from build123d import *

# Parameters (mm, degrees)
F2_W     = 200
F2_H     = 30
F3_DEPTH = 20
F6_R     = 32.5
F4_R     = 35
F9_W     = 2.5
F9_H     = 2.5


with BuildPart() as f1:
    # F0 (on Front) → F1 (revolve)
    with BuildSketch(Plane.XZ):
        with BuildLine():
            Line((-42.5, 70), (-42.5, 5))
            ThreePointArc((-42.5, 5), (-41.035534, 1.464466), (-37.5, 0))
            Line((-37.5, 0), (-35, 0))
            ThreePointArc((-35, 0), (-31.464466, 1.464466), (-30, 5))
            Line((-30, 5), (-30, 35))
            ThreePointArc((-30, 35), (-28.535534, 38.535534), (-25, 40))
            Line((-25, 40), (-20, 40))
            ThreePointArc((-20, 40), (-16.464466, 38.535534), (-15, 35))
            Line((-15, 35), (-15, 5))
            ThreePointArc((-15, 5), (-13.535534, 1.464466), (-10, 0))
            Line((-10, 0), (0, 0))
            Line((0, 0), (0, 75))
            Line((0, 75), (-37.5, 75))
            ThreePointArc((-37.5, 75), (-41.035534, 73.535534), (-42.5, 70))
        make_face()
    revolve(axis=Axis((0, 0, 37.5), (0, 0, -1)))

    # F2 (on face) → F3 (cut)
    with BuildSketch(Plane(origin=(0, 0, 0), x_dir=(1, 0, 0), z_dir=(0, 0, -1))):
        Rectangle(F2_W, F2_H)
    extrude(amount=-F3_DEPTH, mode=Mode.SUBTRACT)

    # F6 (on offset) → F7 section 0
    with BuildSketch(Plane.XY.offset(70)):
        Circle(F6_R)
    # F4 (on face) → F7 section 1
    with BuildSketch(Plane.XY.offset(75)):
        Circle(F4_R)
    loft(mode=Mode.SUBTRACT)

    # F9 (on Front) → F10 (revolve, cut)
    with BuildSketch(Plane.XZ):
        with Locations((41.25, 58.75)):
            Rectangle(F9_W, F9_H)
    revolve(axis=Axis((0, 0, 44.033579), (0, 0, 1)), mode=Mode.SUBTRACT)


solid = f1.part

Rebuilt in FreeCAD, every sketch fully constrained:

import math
import FreeCAD as App
import Part
import Sketcher
from FreeCAD import Vector
Q = App.Units.Quantity


def add_polygon(sketch, points):
    """Adds a closed chain of lines whose ends are joined by coincident constraints."""
    first, n = sketch.GeometryCount, len(points)
    for a, b in zip(points, points[1:] + points[:1]):
        sketch.addGeometry(Part.LineSegment(App.Vector(*a, 0), App.Vector(*b, 0)), False)
    for i in range(n):
        sketch.addConstraint(Sketcher.Constraint("Coincident", first + i, 2, first + (i + 1) % n, 1))

doc = App.newDocument("Part")
params = doc.addObject("Spreadsheet::Sheet", "Params")
for row, (alias, value) in enumerate([
    ("sketch1_radius", "5 mm"),
    ("sketch1_width", "5 mm"),
    ("sketch1_width2", "10 mm"),
    ("sketch1_height", "65 mm"),
    ("sketch1_height2", "30 mm"),
    ("revolution_angle", "360 deg"),
    ("sketch2_width", "200 mm"),
    ("sketch2_height", "30 mm"),
    ("pocket1_length", "20 mm"),
    ("sketch3_diameter", "65 mm"),
    ("sketch4_diameter", "70 mm"),
    ("sketch5_width", "2.5 mm"),
    ("groove_angle", "360 deg"),
], start=1):
    params.set(f"A{row}", alias)
    params.set(f"B{row}", "=" + value)
    params.setAlias(f"B{row}", alias)

body = doc.addObject("PartDesign::Body", "Body")

# Sketch on XZ plane
sketch1 = body.newObject("Sketcher::SketchObject", "Sketch")
sketch1.AttachmentSupport = (doc.getObject("XZ_Plane"), [""])
sketch1.MapMode = "FlatFace"
sketch1.addGeometry([
    Part.LineSegment(Vector(-42.5, 70, 0), Vector(-42.5, 5, 0)),  # 0
    Part.ArcOfCircle(Part.Circle(Vector(-37.5, 5, 0), Vector(0, 0, 1), 5), math.radians(179.999996), math.radians(270.000004)),  # 1
    Part.LineSegment(Vector(-37.5, 0, 0), Vector(-35, 0, 0)),  # 2
    Part.ArcOfCircle(Part.Circle(Vector(-35, 5, 0), Vector(0, 0, 1), 5), math.radians(-90.000004), math.radians(0.000004)),  # 3
    Part.LineSegment(Vector(-30, 5, 0), Vector(-30, 35, 0)),  # 4
    Part.ArcOfCircle(Part.Circle(Vector(-25, 35, 0), Vector(0, 0, 1), 5), math.radians(89.999996), math.radians(180.000004)),  # 5
    Part.LineSegment(Vector(-25, 40, 0), Vector(-20, 40, 0)),  # 6
    Part.ArcOfCircle(Part.Circle(Vector(-20, 35, 0), Vector(0, 0, 1), 5), math.radians(-0.000004), math.radians(90.000004)),  # 7
    Part.LineSegment(Vector(-15, 35, 0), Vector(-15, 5, 0)),  # 8
    Part.ArcOfCircle(Part.Circle(Vector(-10, 5, 0), Vector(0, 0, 1), 5), math.radians(179.999996), math.radians(270.000004)),  # 9
    Part.LineSegment(Vector(-10, 0, 0), Vector(0, 0, 0)),  # 10
    Part.LineSegment(Vector(0, 0, 0), Vector(0, 75, 0)),  # 11
    Part.LineSegment(Vector(0, 75, 0), Vector(-37.5, 75, 0)),  # 12
    Part.ArcOfCircle(Part.Circle(Vector(-37.5, 70, 0), Vector(0, 0, 1), 5), math.radians(89.999996), math.radians(180.000004)),  # 13
], False)
sketch1.addConstraint([
    Sketcher.Constraint("Tangent", 0, 2, 1, 1),
    Sketcher.Constraint("Tangent", 1, 2, 2, 1),
    Sketcher.Constraint("Tangent", 2, 2, 3, 1),
    Sketcher.Constraint("Tangent", 3, 2, 4, 1),
    Sketcher.Constraint("Tangent", 4, 2, 5, 2),
    Sketcher.Constraint("Tangent", 5, 1, 6, 1),
    Sketcher.Constraint("Tangent", 6, 2, 7, 2),
    Sketcher.Constraint("Tangent", 7, 1, 8, 1),
    Sketcher.Constraint("Tangent", 8, 2, 9, 1),
    Sketcher.Constraint("Tangent", 9, 2, 10, 1),
    Sketcher.Constraint("Coincident", 10, 2, 11, 1),
    Sketcher.Constraint("Coincident", 11, 2, 12, 1),
    Sketcher.Constraint("Tangent", 12, 2, 13, 1),
    Sketcher.Constraint("Tangent", 13, 2, 0, 1),
    Sketcher.Constraint("Vertical", 0),
    Sketcher.Constraint("Horizontal", 2),
    Sketcher.Constraint("Vertical", 4),
    Sketcher.Constraint("Horizontal", 6),
    Sketcher.Constraint("Vertical", 8),
    Sketcher.Constraint("Horizontal", 10),
    Sketcher.Constraint("Vertical", 11),
    Sketcher.Constraint("Horizontal", 12),
    Sketcher.Constraint("Coincident", 10, 2, -1, 1),
    Sketcher.Constraint("Equal", 1, 3),
    Sketcher.Constraint("Equal", 3, 5),
    Sketcher.Constraint("Equal", 5, 7),
    Sketcher.Constraint("Equal", 7, 9),
    Sketcher.Constraint("Equal", 9, 13),
    Sketcher.Constraint("PointOnObject", 1, 2, -1),
    Sketcher.Constraint("Radius", 1, Q("5 mm")),
    Sketcher.Constraint("DistanceX", 6, 1, 6, 2, Q("5 mm")),
    Sketcher.Constraint("DistanceX", 10, 1, 10, 2, Q("10 mm")),
    Sketcher.Constraint("DistanceY", 0, 2, 0, 1, Q("65 mm")),
    Sketcher.Constraint("DistanceY", 4, 1, 4, 2, Q("30 mm")),
    Sketcher.Constraint("DistanceX", 2, 1, 2, 2, Q("2.5 mm")),
])
sketch1.setExpression("Constraints[29]", "Params.sketch1_radius")
sketch1.setExpression("Constraints[30]", "Params.sketch1_width")
sketch1.setExpression("Constraints[31]", "Params.sketch1_width2")
sketch1.setExpression("Constraints[32]", "Params.sketch1_height")
sketch1.setExpression("Constraints[33]", "Params.sketch1_height2")
revolution = body.newObject("PartDesign::Revolution", "Revolution")
revolution.Profile = sketch1
revolution.ReferenceAxis = (sketch1, ["V_Axis"])
revolution.setExpression("Angle", "Params.revolution_angle")

# Sketch on XY plane
sketch2 = body.newObject("Sketcher::SketchObject", "Sketch001")
sketch2.AttachmentSupport = (doc.getObject("XY_Plane"), [""])
sketch2.MapMode = "FlatFace"
add_polygon(sketch2, [(-100, -15), (-100, 15), (100, 15), (100, -15)])  # lines 0-3
sketch2.addConstraint([
    Sketcher.Constraint("Vertical", 0),
    Sketcher.Constraint("Horizontal", 1),
    Sketcher.Constraint("Vertical", 2),
    Sketcher.Constraint("Horizontal", 3),
    Sketcher.Constraint("Symmetric", 0, 2, 2, 2, -1, 1),
    Sketcher.Constraint("DistanceX", 1, 1, 1, 2, Q("200 mm")),
    Sketcher.Constraint("DistanceY", 0, 1, 0, 2, Q("30 mm")),
])
sketch2.setExpression("Constraints[9]", "Params.sketch2_width")
sketch2.setExpression("Constraints[10]", "Params.sketch2_height")
pocket1 = body.newObject("PartDesign::Pocket", "Pocket")
pocket1.Profile = sketch2
pocket1.setExpression("Length", "Params.pocket1_length")
pocket1.Reversed = True

# Sketch on XY plane
sketch3 = body.newObject("Sketcher::SketchObject", "Sketch002")
sketch3.AttachmentSupport = (doc.getObject("XY_Plane"), [""])
sketch3.MapMode = "FlatFace"
sketch3.AttachmentOffset = App.Placement(Vector(0, 0, 70), App.Rotation())
sketch3.addGeometry(Part.Circle(Vector(0, 0, 0), Vector(0, 0, 1), 32.5), False)
sketch3.addConstraint([
    Sketcher.Constraint("Coincident", 0, 3, -1, 1),
    Sketcher.Constraint("Diameter", 0, Q("65 mm")),
])
sketch3.setExpression("Constraints[1]", "Params.sketch3_diameter")

# Sketch on XY plane
sketch4 = body.newObject("Sketcher::SketchObject", "Sketch003")
sketch4.AttachmentSupport = (doc.getObject("XY_Plane"), [""])
sketch4.MapMode = "FlatFace"
sketch4.AttachmentOffset = App.Placement(Vector(0, 0, 75), App.Rotation())
sketch4.addGeometry(Part.Circle(Vector(0, 0, 0), Vector(0, 0, 1), 35), False)
sketch4.addConstraint([
    Sketcher.Constraint("Coincident", 0, 3, -1, 1),
    Sketcher.Constraint("Diameter", 0, Q("70 mm")),
])
sketch4.setExpression("Constraints[1]", "Params.sketch4_diameter")

subtractiveloft = body.newObject("PartDesign::SubtractiveLoft", "SubtractiveLoft")
subtractiveloft.Profile = sketch3
subtractiveloft.Sections = [sketch4]

# Sketch on XZ plane
sketch5 = body.newObject("Sketcher::SketchObject", "Sketch004")
sketch5.AttachmentSupport = (doc.getObject("XZ_Plane"), [""])
sketch5.MapMode = "FlatFace"
add_polygon(sketch5, [(40, 60), (40, 57.5), (42.5, 57.5), (42.5, 60)])  # lines 0-3
sketch5.addConstraint([
    Sketcher.Constraint("Vertical", 0),
    Sketcher.Constraint("Horizontal", 1),
    Sketcher.Constraint("Vertical", 2),
    Sketcher.Constraint("Horizontal", 3),
    Sketcher.Constraint("Equal", 3, 0),
    Sketcher.Constraint("DistanceX", 1, 1, 1, 2, Q("2.5 mm")),
    Sketcher.Constraint("DistanceX", -1, 1, 0, 2, Q("40 mm")),
    Sketcher.Constraint("DistanceY", -1, 1, 2, 2, Q("60 mm")),
])
sketch5.setExpression("Constraints[9]", "Params.sketch5_width")
groove = body.newObject("PartDesign::Groove", "Groove")
groove.Profile = sketch5
groove.ReferenceAxis = (sketch5, ["V_Axis"])
groove.setExpression("Angle", "Params.groove_angle")

doc.recompute()
